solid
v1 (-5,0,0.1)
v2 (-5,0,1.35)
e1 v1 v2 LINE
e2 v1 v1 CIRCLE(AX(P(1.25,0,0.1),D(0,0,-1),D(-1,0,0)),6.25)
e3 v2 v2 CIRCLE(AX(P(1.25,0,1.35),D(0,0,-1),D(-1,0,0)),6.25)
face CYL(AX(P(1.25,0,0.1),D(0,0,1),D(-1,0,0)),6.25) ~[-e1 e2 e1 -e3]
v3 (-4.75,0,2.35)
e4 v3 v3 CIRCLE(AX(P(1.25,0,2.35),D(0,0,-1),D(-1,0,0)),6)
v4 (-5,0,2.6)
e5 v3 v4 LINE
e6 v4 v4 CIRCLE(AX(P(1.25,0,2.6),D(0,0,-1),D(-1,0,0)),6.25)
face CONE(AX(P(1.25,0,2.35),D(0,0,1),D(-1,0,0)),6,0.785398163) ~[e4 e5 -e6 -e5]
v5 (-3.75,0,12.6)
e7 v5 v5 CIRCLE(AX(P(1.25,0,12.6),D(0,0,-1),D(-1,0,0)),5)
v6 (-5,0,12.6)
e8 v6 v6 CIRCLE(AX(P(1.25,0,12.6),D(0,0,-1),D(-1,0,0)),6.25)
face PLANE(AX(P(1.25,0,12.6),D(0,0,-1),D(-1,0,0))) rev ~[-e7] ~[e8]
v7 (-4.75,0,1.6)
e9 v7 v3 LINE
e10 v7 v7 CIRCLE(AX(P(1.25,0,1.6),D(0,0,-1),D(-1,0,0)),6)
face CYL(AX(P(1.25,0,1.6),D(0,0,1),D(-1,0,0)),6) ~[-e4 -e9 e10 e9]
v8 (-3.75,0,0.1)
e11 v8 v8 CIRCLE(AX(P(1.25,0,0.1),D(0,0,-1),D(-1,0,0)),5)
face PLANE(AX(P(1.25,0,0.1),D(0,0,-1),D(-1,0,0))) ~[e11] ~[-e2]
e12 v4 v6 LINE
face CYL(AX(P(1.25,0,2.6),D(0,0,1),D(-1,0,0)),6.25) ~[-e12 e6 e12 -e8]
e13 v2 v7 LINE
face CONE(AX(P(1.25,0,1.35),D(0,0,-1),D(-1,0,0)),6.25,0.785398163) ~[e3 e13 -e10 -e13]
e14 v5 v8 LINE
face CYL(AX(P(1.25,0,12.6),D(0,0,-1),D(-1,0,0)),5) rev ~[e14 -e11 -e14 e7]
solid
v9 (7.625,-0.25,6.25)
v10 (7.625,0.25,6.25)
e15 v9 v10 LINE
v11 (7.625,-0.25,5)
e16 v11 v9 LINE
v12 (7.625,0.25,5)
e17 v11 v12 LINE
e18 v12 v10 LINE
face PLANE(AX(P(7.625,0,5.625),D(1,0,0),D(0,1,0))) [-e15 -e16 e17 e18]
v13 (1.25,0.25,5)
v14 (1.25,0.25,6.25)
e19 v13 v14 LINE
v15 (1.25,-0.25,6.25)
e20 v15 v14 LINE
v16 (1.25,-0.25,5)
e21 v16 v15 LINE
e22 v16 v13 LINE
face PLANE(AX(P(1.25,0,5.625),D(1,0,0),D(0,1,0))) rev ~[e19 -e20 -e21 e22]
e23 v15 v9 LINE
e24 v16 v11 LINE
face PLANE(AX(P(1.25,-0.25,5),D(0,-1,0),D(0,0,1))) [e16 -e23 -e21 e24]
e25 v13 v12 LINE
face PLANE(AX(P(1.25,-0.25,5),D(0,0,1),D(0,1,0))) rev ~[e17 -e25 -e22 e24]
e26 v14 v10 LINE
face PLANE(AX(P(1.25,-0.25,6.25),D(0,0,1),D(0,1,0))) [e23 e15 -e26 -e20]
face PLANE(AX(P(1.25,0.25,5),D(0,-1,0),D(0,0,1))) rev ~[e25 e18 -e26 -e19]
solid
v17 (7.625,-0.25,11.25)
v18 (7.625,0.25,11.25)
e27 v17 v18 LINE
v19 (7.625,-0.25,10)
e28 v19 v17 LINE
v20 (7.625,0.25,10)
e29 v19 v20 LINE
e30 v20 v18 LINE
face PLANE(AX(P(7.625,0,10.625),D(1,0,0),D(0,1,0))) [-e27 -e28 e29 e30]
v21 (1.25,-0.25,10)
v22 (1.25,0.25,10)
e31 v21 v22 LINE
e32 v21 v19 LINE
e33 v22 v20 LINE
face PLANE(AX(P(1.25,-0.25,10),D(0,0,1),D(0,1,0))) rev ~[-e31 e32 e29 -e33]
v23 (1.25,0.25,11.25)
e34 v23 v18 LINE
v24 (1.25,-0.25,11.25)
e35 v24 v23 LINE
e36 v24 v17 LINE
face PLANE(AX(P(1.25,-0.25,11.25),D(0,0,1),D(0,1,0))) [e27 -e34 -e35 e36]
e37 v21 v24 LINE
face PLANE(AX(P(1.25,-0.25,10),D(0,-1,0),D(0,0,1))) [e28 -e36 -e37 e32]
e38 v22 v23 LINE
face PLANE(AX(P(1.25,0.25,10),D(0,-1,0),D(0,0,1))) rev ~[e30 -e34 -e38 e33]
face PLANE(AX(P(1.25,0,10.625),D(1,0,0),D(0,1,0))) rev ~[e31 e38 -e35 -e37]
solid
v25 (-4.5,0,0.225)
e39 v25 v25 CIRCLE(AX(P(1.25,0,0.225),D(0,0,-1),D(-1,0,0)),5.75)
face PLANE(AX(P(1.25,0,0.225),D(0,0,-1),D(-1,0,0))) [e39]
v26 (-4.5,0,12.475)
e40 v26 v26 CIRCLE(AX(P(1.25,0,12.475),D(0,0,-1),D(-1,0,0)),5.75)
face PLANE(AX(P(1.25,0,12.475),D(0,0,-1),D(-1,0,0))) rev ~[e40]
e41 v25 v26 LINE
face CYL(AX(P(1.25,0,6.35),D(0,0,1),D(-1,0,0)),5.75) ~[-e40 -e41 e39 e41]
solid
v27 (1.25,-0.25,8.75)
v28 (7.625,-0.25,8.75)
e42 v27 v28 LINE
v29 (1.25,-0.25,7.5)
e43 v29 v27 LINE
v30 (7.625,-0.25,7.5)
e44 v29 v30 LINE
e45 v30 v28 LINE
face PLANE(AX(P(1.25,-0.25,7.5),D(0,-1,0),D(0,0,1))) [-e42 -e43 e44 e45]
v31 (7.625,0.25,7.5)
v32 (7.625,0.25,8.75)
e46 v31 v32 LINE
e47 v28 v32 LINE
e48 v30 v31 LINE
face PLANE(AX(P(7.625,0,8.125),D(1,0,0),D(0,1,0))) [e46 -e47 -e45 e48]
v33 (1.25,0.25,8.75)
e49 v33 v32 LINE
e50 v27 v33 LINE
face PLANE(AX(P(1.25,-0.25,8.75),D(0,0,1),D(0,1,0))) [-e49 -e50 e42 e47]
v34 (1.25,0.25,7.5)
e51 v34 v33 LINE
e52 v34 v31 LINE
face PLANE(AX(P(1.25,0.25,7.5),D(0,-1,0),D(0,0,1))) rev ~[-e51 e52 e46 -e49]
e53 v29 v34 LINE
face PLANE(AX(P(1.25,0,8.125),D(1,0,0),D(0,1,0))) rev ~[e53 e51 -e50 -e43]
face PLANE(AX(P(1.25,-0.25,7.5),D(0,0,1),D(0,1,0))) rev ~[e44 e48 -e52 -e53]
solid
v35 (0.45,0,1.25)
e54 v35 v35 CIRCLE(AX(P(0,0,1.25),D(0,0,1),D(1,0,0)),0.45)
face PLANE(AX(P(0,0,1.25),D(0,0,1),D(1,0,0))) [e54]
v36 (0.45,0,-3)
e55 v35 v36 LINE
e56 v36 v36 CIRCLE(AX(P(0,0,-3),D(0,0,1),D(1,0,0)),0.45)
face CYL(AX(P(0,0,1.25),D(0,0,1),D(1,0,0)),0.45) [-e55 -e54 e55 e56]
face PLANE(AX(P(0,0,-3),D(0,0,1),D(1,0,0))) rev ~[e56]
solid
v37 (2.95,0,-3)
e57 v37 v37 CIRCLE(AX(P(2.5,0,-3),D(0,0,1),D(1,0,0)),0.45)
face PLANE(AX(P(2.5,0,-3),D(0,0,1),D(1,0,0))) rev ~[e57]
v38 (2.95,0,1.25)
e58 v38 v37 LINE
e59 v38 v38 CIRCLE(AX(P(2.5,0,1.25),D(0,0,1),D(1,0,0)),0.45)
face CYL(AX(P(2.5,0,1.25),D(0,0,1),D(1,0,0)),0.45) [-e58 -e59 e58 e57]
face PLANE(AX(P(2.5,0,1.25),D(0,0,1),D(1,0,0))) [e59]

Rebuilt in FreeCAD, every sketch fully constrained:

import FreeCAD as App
import Part
import Sketcher


def add_polygon(sketch, points):
    """Adds a closed chain of lines whose ends are joined by coincident constraints."""
    first, n = sketch.GeometryCount, len(points)
    for a, b in zip(points, points[1:] + points[:1]):
        sketch.addGeometry(Part.LineSegment(App.Vector(*a, 0), App.Vector(*b, 0)), False)
    for i in range(n):
        sketch.addConstraint(Sketcher.Constraint("Coincident", first + i, 2, first + (i + 1) % n, 1))

doc = App.newDocument("Part")
params = doc.addObject("Spreadsheet::Sheet", "Params")
for row, (alias, value) in enumerate([
    ("sketch1_height", "10 mm"),
    ("sketch1_height2", "12.5 mm"),
    ("revolution_angle", "360 deg"),
    ("sketch2_width", "5.75 mm"),
    ("sketch2_height", "12.25 mm"),
    ("revolution2_angle", "360 deg"),
    ("sketch3_diameter", "0.9 mm"),
    ("pad1_length", "4.25 mm"),
    ("sketch4_width", "0.5 mm"),
    ("sketch4_height", "1.25 mm"),
    ("pad2_length", "6.375 mm"),
], start=1):
    params.set(f"A{row}", alias)
    params.set(f"B{row}", "=" + value)
    params.setAlias(f"B{row}", alias)

body = doc.addObject("PartDesign::Body", "Body")

# Sketch on XZ plane
sketch1 = body.newObject("Sketcher::SketchObject", "Sketch")
sketch1.AttachmentSupport = (doc.getObject("XZ_Plane"), [""])
sketch1.MapMode = "FlatFace"
add_polygon(sketch1, [(-5, 1.35), (-5, 0.1), (-3.75, 0.1), (-3.75, 12.6), (-5, 12.6), (-5, 2.6), (-4.75, 2.35), (-4.75, 1.6)])  # lines 0-7
sketch1.addGeometry(Part.LineSegment(App.Vector(1.25, 12.6, 0), App.Vector(1.25, 0.1, 0)), True)  # axis
sketch1.addConstraint([
    Sketcher.Constraint("Vertical", 0),
    Sketcher.Constraint("Horizontal", 1),
    Sketcher.Constraint("Vertical", 2),
    Sketcher.Constraint("Horizontal", 3),
    Sketcher.Constraint("Vertical", 4),
    Sketcher.Constraint("Vertical", 6),
    Sketcher.Constraint("Vertical", 8),
    Sketcher.Constraint("Perpendicular", 5, 7),
    Sketcher.Constraint("Horizontal", 3, 2, 8, 1),
    Sketcher.Constraint("Horizontal", 1, 2, 8, 2),
    Sketcher.Constraint("Vertical", 0, 2, 3, 2),
    Sketcher.Constraint("Equal", 3, 0),
    Sketcher.Constraint("Equal", 5, 7),
    Sketcher.Constraint("DistanceY", 4, 2, 4, 1, 10.0),
    Sketcher.Constraint("DistanceY", 2, 1, 2, 2, 12.5),
    Sketcher.Constraint("DistanceX", 0, 2, -1, 1, 5.0),
    Sketcher.Constraint("DistanceX", 5, 2, 1, 2, 1.0),
    Sketcher.Constraint("DistanceY", 6, 2, 4, 2, 1.0),
    Sketcher.Constraint("DistanceX", 2, 2, 8, 1, 5.0),
    Sketcher.Constraint("DistanceY", -1, 1, 0, 2, 0.1),
])
sketch1.setExpression("Constraints[21]", "Params.sketch1_height")
sketch1.setExpression("Constraints[22]", "Params.sketch1_height2")
revolution = body.newObject("PartDesign::Revolution", "Revolution")
revolution.Profile = sketch1
revolution.ReferenceAxis = (sketch1, ["Axis0"])
revolution.setExpression("Angle", "Params.revolution_angle")
body2 = doc.addObject("PartDesign::Body", "Body001")

# Sketch on XZ plane
sketch2 = body2.newObject("Sketcher::SketchObject", "Sketch001")
sketch2.AttachmentSupport = (doc.getObject("XZ_Plane001"), [""])
sketch2.MapMode = "FlatFace"
add_polygon(sketch2, [(-4, 12), (-4, 0), (1, 0), (1, 12)])  # lines 0-3
sketch2.addGeometry(Part.LineSegment(App.Vector(1, 12, 0), App.Vector(1, 0, 0)), True)  # axis
sketch2.addConstraint([
    Sketcher.Constraint("Vertical", 0),
    Sketcher.Constraint("Horizontal", 1),
    Sketcher.Constraint("Vertical", 2),
    Sketcher.Constraint("Horizontal", 3),
    Sketcher.Constraint("Vertical", 4),
    Sketcher.Constraint("Coincident", 4, 1, 2, 2),
    Sketcher.Constraint("Horizontal", 0, 2, 4, 2),
    Sketcher.Constraint("DistanceX", 1, 1, 1, 2, 5.75),
    Sketcher.Constraint("DistanceY", 0, 2, 0, 1, 12.25),
    Sketcher.Constraint("DistanceX", 0, 2, -1, 1, 4.5),
    Sketcher.Constraint("DistanceY", -1, 1, 0, 2, 0.225),
])
sketch2.setExpression("Constraints[11]", "Params.sketch2_width")
sketch2.setExpression("Constraints[12]", "Params.sketch2_height")
revolution2 = body2.newObject("PartDesign::Revolution", "Revolution001")
revolution2.Profile = sketch2
revolution2.ReferenceAxis = (sketch2, ["Axis0"])
revolution2.setExpression("Angle", "Params.revolution2_angle")
body3 = doc.addObject("PartDesign::Body", "Body002")
body3.AllowCompound = True

# Sketch on XY plane
sketch3 = body3.newObject("Sketcher::SketchObject", "Sketch002")
sketch3.AttachmentSupport = (doc.getObject("XY_Plane002"), [""])
sketch3.MapMode = "FlatFace"
sketch3.AttachmentOffset = App.Placement(App.Vector(0, 0, 1.25), App.Rotation())
sketch3.addGeometry([
    Part.Circle(App.Vector(0, 0, 0), App.Vector(0, 0, 1), 0.45),
    Part.Circle(App.Vector(2.5, 0, 0), App.Vector(0, 0, 1), 0.45),
], False)
sketch3.addConstraint([
    Sketcher.Constraint("Coincident", 0, 3, -1, 1),
    Sketcher.Constraint("Equal", 0, 1),
    Sketcher.Constraint("PointOnObject", 1, 3, -1),
    Sketcher.Constraint("Diameter", 0, 0.9),
    Sketcher.Constraint("DistanceX", -1, 1, 1, 3, 2.5),
])
sketch3.setExpression("Constraints[3]", "Params.sketch3_diameter")
pad1 = body3.newObject("PartDesign::Pad", "Pad")
pad1.Profile = sketch3
pad1.setExpression("Length", "Params.pad1_length")
pad1.Reversed = True
body4 = doc.addObject("PartDesign::Body", "Body003")
body4.AllowCompound = True

# Sketch on YZ plane
sketch4 = body4.newObject("Sketcher::SketchObject", "Sketch003")
sketch4.AttachmentSupport = (doc.getObject("YZ_Plane003"), [""])
sketch4.MapMode = "FlatFace"
sketch4.AttachmentOffset = App.Placement(App.Vector(0, 0, 1.25), App.Rotation())
add_polygon(sketch4, [(-0.2, 6.2), (-0.2, 5), (0.2, 5), (0.2, 6.2)])  # lines 0-3
add_polygon(sketch4, [(-0.2, 8.8), (-0.2, 7.5), (0.2, 7.5), (0.2, 8.8)])  # lines 4-7
add_polygon(sketch4, [(-0.2, 11.2), (-0.2, 10), (0.2, 10), (0.2, 11.2)])  # lines 8-11
sketch4.addConstraint([
    Sketcher.Constraint("Vertical", 0),
    Sketcher.Constraint("Horizontal", 1),
    Sketcher.Constraint("Vertical", 2),
    Sketcher.Constraint("Horizontal", 3),
    Sketcher.Constraint("Vertical", 4),
    Sketcher.Constraint("Horizontal", 5),
    Sketcher.Constraint("Vertical", 6),
    Sketcher.Constraint("Horizontal", 7),
    Sketcher.Constraint("Vertical", 8),
    Sketcher.Constraint("Horizontal", 9),
    Sketcher.Constraint("Vertical", 10),
    Sketcher.Constraint("Horizontal", 11),
    Sketcher.Constraint("Vertical", 3, 2, 4, 2),
    Sketcher.Constraint("Vertical", 2, 2, 5, 2),
    Sketcher.Constraint("Vertical", 7, 2, 8, 2),
    Sketcher.Constraint("Vertical", 6, 2, 9, 2),
    Sketcher.Constraint("Equal", 2, 4),
    Sketcher.Constraint("Equal", 6, 8),
    Sketcher.Constraint("DistanceX", 1, 1, 1, 2, 0.5),
    Sketcher.Constraint("DistanceY", -1, 1, 0, 2, 5.0),
    Sketcher.Constraint("DistanceY", -1, 1, 8, 2, 10.0),
    Sketcher.Constraint("DistanceY", 0, 2, 0, 1, 1.25),
    Sketcher.Constraint("DistanceY", -1, 1, 4, 2, 7.5),
    Sketcher.Constraint("DistanceX", 0, 2, -1, 1, 0.25),
])
sketch4.setExpression("Constraints[30]", "Params.sketch4_width")
sketch4.setExpression("Constraints[33]", "Params.sketch4_height")
pad2 = body4.newObject("PartDesign::Pad", "Pad001")
pad2.Profile = sketch4
pad2.setExpression("Length", "Params.pad2_length")

doc.recompute()
